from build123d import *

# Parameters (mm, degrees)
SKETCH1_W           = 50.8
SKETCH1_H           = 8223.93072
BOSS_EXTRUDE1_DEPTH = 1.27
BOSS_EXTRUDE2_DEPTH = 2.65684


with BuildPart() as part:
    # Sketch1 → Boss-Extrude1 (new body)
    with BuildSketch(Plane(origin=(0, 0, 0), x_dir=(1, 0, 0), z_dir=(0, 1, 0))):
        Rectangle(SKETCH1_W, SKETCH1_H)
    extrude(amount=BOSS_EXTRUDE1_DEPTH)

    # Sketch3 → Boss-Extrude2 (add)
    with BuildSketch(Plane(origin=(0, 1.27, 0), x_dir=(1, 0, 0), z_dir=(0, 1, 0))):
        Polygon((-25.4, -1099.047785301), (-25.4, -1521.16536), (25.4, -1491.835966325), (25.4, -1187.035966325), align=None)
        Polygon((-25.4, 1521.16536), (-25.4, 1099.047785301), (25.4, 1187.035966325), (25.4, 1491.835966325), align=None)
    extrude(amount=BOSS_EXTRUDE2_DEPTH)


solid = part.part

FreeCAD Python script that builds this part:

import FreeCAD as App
import Part
import Sketcher
Q = App.Units.Quantity

doc = App.newDocument("Part")
body = doc.addObject("PartDesign::Body", "Body")

sketch1 = body.newObject("Sketcher::SketchObject", "Sketch")
sketch1.AttachmentSupport = (doc.getObject("XZ_Plane"), [""])
sketch1.MapMode = "FlatFace"
sketch1.addGeometry([
    Part.LineSegment(App.Vector(-25, -4112, 0), App.Vector(-25, 4112, 0)),
    Part.LineSegment(App.Vector(-25, 4112, 0), App.Vector(25, 4112, 0)),
    Part.LineSegment(App.Vector(25, 4112, 0), App.Vector(25, -4112, 0)),
    Part.LineSegment(App.Vector(25, -4112, 0), App.Vector(-25, -4112, 0)),
], False)
sketch1.addConstraint([
    Sketcher.Constraint("Coincident", 0, 2, 1, 1),
    Sketcher.Constraint("Coincident", 1, 2, 2, 1),
    Sketcher.Constraint("Coincident", 2, 2, 3, 1),
    Sketcher.Constraint("Coincident", 3, 2, 0, 1),
    Sketcher.Constraint("Vertical", 0),
    Sketcher.Constraint("Horizontal", 1),
    Sketcher.Constraint("Vertical", 2),
    Sketcher.Constraint("Horizontal", 3),
    Sketcher.Constraint("Symmetric", 0, 2, 2, 2, -1, 1),
    Sketcher.Constraint("DistanceX", 1, 1, 1, 2, Q("2 in")),
    Sketcher.Constraint("DistanceY", 0, 1, 0, 2, Q("323.7768 in")),
])
pad1 = body.newObject("PartDesign::Pad", "Pad")
pad1.Profile = sketch1
pad1.Length = Q("0.05 in")
pad1.Reversed = True

sketch2 = body.newObject("Sketcher::SketchObject", "Sketch001")
sketch2.AttachmentSupport = (doc.getObject("XZ_Plane"), [""])
sketch2.MapMode = "FlatFace"
sketch2.AttachmentOffset = App.Placement(App.Vector(0, 0, -0.05 * 25.4), App.Rotation())
sketch2.addGeometry([
    Part.LineSegment(App.Vector(-25, 1099, 0), App.Vector(-25, 1521, 0)),
    Part.LineSegment(App.Vector(-25, 1521, 0), App.Vector(25, 1492, 0)),
    Part.LineSegment(App.Vector(25, 1492, 0), App.Vector(25, 1187, 0)),
    Part.LineSegment(App.Vector(25, 1187, 0), App.Vector(-25, 1099, 0)),
    Part.LineSegment(App.Vector(-25, -1521, 0), App.Vector(-25, -1099, 0)),
    Part.LineSegment(App.Vector(-25, -1099, 0), App.Vector(25, -1187, 0)),
    Part.LineSegment(App.Vector(25, -1187, 0), App.Vector(25, -1492, 0)),
    Part.LineSegment(App.Vector(25, -1492, 0), App.Vector(-25, -1521, 0)),
], False)
sketch2.addConstraint([
    Sketcher.Constraint("Coincident", 0, 2, 1, 1),
    Sketcher.Constraint("Coincident", 1, 2, 2, 1),
    Sketcher.Constraint("Coincident", 2, 2, 3, 1),
    Sketcher.Constraint("Coincident", 3, 2, 0, 1),
    Sketcher.Constraint("Coincident", 4, 2, 5, 1),
    Sketcher.Constraint("Coincident", 5, 2, 6, 1),
    Sketcher.Constraint("Coincident", 6, 2, 7, 1),
    Sketcher.Constraint("Coincident", 7, 2, 4, 1),
    Sketcher.Constraint("Vertical", 0),
    Sketcher.Constraint("Vertical", 2),
    Sketcher.Constraint("Vertical", 4),
    Sketcher.Constraint("Vertical", 6),
    Sketcher.Constraint("Symmetric", 3, 2, 4, 2, -1),
    Sketcher.Constraint("Symmetric", 2, 2, 5, 2, -1),
    Sketcher.Constraint("Perpendicular", 1, 3),
    Sketcher.Constraint("Perpendicular", 5, 7),
    Sketcher.Constraint("Equal", 0, 4),
    Sketcher.Constraint("DistanceY", 2, 2, 2, 1, Q("12 in")),
    Sketcher.Constraint("Distance", 3, Q("4 in")),
    Sketcher.Constraint("DistanceX", 0, 2, -1, 1, Q("1 in")),
    Sketcher.Constraint("DistanceX", -1, 1, 1, 2, Q("1 in")),
    Sketcher.Constraint("DistanceY", -1, 1, 0, 2, Q("59.8884 in")),
])
pad2 = body.newObject("PartDesign::Pad", "Pad001")
pad2.Profile = sketch2
pad2.Length = Q("0.1046 in")
pad2.Reversed = True

doc.recompute()
